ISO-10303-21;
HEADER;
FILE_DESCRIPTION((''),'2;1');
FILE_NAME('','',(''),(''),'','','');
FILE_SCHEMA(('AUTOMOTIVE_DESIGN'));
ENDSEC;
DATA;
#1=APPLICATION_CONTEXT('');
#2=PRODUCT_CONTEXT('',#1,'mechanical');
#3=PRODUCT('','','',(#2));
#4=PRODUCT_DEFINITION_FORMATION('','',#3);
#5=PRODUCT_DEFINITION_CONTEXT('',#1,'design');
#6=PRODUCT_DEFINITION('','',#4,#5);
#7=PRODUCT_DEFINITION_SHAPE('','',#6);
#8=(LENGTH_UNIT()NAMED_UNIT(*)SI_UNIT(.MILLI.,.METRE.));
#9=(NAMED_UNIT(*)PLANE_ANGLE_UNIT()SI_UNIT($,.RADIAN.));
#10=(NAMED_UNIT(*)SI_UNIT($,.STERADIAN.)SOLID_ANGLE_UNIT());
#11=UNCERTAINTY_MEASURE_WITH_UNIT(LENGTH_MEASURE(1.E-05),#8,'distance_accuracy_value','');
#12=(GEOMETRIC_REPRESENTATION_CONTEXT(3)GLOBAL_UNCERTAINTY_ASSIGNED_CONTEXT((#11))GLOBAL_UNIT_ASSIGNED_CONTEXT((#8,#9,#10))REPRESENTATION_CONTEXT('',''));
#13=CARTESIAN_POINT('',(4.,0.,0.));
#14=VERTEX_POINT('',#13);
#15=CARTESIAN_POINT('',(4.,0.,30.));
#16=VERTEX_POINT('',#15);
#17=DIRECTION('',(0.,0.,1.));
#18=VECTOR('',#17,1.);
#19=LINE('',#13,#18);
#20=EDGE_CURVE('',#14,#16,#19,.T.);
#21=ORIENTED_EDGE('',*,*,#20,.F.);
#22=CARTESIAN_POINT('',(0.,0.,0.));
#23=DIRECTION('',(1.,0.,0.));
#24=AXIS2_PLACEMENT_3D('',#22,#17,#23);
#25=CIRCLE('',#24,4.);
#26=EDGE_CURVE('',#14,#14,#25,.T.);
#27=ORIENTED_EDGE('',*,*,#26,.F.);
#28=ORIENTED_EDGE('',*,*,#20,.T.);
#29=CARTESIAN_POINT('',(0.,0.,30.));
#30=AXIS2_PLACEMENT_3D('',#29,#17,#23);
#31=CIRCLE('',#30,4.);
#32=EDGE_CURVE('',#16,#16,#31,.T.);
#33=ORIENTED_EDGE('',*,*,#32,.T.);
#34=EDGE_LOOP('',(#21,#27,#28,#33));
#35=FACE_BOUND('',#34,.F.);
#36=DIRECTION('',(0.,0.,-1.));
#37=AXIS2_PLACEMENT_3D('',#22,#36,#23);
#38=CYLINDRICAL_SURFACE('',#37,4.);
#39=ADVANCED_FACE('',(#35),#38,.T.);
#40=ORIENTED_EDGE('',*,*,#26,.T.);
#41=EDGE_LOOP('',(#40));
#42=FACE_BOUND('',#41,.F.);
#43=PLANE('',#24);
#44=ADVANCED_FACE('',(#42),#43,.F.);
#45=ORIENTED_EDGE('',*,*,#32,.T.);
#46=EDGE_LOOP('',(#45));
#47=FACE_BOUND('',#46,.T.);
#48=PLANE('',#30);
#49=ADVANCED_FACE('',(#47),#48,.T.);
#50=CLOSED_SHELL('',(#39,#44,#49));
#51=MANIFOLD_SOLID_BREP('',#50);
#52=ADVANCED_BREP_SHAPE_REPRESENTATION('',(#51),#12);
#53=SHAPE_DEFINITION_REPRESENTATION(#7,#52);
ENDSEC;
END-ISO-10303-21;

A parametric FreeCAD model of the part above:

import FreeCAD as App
import Part
import Sketcher

V = App.Vector
Q = App.Units.Quantity

doc = App.newDocument("Part")
body = doc.addObject("PartDesign::Body", "Body")

sketch1 = body.newObject("Sketcher::SketchObject", "Sketch")
sketch1.AttachmentSupport = (doc.getObject("XY_Plane"), [""])
sketch1.MapMode = "FlatFace"
sketch1.addGeometry(Part.Circle(V(0, 0, 0), V(0, 0, 1), 4), False)
sketch1.addConstraint([
    Sketcher.Constraint("Coincident", 0, 3, -1, 1),
    Sketcher.Constraint("Diameter", 0, Q("8 mm")),
])
pad1 = body.newObject("PartDesign::Pad", "Pad")
pad1.Profile = sketch1
pad1.Length = 30

doc.recompute()
